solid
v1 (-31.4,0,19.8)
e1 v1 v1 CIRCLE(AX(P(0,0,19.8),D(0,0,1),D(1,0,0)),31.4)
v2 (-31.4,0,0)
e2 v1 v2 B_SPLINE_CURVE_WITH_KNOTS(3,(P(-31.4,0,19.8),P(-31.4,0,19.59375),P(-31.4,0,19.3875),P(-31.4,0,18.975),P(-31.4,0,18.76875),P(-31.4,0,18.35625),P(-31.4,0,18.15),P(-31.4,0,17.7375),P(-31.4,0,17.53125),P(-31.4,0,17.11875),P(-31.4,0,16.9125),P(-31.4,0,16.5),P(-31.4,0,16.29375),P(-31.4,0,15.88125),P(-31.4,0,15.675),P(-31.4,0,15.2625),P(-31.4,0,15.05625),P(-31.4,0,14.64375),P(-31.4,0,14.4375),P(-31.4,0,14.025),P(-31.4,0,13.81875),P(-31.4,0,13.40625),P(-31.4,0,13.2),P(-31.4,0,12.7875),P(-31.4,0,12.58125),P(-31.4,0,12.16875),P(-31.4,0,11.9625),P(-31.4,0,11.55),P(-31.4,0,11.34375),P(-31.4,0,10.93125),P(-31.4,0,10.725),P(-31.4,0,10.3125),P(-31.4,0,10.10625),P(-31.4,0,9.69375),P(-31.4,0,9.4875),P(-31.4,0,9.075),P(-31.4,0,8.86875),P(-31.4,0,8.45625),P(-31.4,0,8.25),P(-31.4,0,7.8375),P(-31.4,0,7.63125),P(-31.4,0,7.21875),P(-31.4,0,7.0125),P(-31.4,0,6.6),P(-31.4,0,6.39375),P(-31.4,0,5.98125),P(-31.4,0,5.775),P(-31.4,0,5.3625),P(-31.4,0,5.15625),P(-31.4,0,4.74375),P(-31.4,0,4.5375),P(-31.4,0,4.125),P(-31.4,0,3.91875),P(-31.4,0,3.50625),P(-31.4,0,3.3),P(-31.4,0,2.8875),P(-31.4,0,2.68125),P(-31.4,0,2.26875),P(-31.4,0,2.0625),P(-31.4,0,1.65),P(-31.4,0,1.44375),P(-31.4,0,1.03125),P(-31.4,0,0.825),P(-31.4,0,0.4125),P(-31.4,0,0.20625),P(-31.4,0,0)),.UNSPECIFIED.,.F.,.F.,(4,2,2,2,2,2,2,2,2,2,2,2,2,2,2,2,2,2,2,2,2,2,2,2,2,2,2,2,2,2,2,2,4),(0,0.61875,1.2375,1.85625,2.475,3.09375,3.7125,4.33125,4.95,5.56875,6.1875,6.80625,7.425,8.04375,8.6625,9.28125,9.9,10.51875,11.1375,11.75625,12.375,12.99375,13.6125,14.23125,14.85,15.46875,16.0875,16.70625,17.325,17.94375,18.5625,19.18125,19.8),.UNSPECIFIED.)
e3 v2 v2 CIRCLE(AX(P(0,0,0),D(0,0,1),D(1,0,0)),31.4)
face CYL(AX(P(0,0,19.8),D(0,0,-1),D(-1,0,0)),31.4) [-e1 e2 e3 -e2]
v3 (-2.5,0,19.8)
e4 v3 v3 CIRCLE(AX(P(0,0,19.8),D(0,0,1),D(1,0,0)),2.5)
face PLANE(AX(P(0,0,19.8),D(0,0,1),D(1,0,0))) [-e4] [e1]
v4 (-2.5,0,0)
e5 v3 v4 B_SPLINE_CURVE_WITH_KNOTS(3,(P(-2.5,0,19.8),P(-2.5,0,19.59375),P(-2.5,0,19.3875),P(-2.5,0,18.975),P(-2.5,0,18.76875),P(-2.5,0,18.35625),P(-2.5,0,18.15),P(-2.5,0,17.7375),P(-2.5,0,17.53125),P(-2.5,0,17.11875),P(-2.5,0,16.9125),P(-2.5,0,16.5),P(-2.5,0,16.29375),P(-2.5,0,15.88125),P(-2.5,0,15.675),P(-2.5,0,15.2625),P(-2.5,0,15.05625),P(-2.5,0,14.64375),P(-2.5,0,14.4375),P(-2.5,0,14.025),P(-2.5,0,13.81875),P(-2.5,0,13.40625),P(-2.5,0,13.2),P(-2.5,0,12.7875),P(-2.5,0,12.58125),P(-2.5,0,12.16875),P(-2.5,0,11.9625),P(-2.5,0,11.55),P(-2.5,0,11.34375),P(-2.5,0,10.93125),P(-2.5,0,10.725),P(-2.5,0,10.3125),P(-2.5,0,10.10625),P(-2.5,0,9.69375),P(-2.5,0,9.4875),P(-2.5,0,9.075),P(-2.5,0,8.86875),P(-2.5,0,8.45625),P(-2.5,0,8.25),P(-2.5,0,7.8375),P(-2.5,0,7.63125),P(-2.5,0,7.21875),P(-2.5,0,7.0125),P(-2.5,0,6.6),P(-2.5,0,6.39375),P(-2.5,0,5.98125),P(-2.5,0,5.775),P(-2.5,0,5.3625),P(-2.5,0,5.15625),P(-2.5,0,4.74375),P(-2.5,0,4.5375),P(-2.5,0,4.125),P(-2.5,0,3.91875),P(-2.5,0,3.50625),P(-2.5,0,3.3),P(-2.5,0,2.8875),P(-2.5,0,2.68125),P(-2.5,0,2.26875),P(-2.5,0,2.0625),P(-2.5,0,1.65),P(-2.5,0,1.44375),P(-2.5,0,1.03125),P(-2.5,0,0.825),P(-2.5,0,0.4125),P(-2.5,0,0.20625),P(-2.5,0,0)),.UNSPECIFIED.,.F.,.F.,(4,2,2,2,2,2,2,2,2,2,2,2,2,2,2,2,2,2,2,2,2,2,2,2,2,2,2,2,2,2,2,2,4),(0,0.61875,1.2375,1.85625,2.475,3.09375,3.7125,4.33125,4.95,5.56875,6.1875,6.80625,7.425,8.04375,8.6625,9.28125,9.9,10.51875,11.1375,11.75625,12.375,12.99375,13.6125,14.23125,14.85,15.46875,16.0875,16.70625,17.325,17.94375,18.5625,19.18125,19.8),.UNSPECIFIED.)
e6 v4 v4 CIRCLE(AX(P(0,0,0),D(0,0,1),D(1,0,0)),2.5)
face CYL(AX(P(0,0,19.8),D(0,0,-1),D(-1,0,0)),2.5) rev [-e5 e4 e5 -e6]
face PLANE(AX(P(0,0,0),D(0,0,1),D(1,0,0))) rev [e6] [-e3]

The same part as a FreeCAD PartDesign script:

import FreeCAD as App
import Part
import Sketcher

doc = App.newDocument("Part")
body = doc.addObject("PartDesign::Body", "Body")

# Sketch on XY plane
sketch1 = doc.addObject("Sketcher::SketchObject", "Sketch")
body.addObject(sketch1)
sketch1.AttachmentSupport = (doc.XY_Plane, [""])
sketch1.MapMode = "FlatFace"
sketch1.addGeometry([
    Part.Circle(App.Vector(0, 0, 0), App.Vector(0, 0, 1), 31.4),
    Part.Circle(App.Vector(0, 0, 0), App.Vector(0, 0, 1), 2.5),
], False)
sketch1.addConstraint([
    Sketcher.Constraint("Coincident", 0, 3, -1, 1),
    Sketcher.Constraint("Coincident", 1, 3, -1, 1),
    Sketcher.Constraint("Diameter", 1, 5.0),
    Sketcher.Constraint("Diameter", 0, 62.8),
])
pad1 = doc.addObject("PartDesign::Pad", "Pad")
body.addObject(pad1)
pad1.Profile = sketch1
pad1.Length = 19.8

doc.recompute()
